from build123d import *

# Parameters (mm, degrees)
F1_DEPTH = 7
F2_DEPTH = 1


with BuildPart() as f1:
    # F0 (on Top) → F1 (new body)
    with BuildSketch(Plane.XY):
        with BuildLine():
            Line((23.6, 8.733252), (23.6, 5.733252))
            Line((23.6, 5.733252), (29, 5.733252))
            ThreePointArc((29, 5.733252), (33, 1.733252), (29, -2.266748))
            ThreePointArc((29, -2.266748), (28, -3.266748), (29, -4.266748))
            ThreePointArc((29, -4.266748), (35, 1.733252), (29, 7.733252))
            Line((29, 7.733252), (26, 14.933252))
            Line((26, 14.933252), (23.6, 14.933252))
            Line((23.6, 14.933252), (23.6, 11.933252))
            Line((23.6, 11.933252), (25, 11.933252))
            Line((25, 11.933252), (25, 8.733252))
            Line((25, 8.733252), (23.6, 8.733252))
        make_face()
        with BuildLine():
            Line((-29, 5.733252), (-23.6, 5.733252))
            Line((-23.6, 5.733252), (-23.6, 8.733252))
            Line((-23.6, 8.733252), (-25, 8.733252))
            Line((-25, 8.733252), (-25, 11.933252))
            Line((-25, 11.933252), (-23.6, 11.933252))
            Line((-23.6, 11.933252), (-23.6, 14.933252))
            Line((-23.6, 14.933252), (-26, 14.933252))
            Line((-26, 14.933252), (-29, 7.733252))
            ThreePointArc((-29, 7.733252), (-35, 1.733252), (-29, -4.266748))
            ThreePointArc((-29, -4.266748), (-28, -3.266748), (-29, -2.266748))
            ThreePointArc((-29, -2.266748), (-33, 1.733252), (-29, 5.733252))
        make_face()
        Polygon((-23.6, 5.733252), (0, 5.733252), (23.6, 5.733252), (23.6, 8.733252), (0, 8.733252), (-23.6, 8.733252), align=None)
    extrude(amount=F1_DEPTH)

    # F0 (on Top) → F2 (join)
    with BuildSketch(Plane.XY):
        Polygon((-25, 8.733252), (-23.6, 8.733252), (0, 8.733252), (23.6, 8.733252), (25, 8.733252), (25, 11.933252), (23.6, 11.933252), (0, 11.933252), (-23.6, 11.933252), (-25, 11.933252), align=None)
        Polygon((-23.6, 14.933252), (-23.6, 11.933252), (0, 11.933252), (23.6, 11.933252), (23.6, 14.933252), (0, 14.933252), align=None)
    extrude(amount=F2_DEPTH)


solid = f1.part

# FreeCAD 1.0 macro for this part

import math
import FreeCAD as App
import Part
import Sketcher


def add_polygon(sketch, points):
    """Adds a closed chain of lines whose ends are joined by coincident constraints."""
    first, n = sketch.GeometryCount, len(points)
    for a, b in zip(points, points[1:] + points[:1]):
        sketch.addGeometry(Part.LineSegment(App.Vector(*a, 0), App.Vector(*b, 0)), False)
    for i in range(n):
        sketch.addConstraint(Sketcher.Constraint("Coincident", first + i, 2, first + (i + 1) % n, 1))

doc = App.newDocument("Part")
body = doc.addObject("PartDesign::Body", "Body")

sketch1 = body.newObject("Sketcher::SketchObject", "Sketch")
sketch1.AttachmentSupport = (doc.getObject("XY_Plane"), [""])
sketch1.MapMode = "FlatFace"
sketch1.addGeometry([
    Part.ArcOfCircle(Part.Circle(App.Vector(29, 1.7, 0), App.Vector(0, 0, 1), 4), math.radians(-90), math.radians(90)),
    Part.ArcOfCircle(Part.Circle(App.Vector(29, -3.3, 0), App.Vector(0, 0, 1), 1), math.radians(90), math.radians(270)),
    Part.ArcOfCircle(Part.Circle(App.Vector(29, 1.7, 0), App.Vector(0, 0, 1), 6), math.radians(-90), math.radians(90)),
    Part.LineSegment(App.Vector(29, 7.7, 0), App.Vector(26, 14.9, 0)),
    Part.LineSegment(App.Vector(26, 14.9, 0), App.Vector(23.6, 14.9, 0)),
    Part.LineSegment(App.Vector(23.6, 14.9, 0), App.Vector(23.6, 11.9, 0)),
    Part.LineSegment(App.Vector(23.6, 11.9, 0), App.Vector(25, 11.9, 0)),
    Part.LineSegment(App.Vector(25, 11.9, 0), App.Vector(25, 8.7, 0)),
    Part.LineSegment(App.Vector(25, 8.7, 0), App.Vector(-25, 8.7, 0)),
    Part.LineSegment(App.Vector(-25, 8.7, 0), App.Vector(-25, 11.9, 0)),
    Part.LineSegment(App.Vector(-25, 11.9, 0), App.Vector(-23.6, 11.9, 0)),
    Part.LineSegment(App.Vector(-23.6, 11.9, 0), App.Vector(-23.6, 14.9, 0)),
    Part.LineSegment(App.Vector(-23.6, 14.9, 0), App.Vector(-26, 14.9, 0)),
    Part.LineSegment(App.Vector(-26, 14.9, 0), App.Vector(-29, 7.7, 0)),
    Part.ArcOfCircle(Part.Circle(App.Vector(-29, 1.7, 0), App.Vector(0, 0, 1), 6), math.radians(90), math.radians(270)),
    Part.ArcOfCircle(Part.Circle(App.Vector(-29, -3.3, 0), App.Vector(0, 0, 1), 1), math.radians(-90), math.radians(90)),
    Part.ArcOfCircle(Part.Circle(App.Vector(-29, 1.7, 0), App.Vector(0, 0, 1), 4), math.radians(90), math.radians(270)),
    Part.LineSegment(App.Vector(-29, 5.7, 0), App.Vector(29, 5.7, 0)),
], False)
sketch1.addConstraint([
    Sketcher.Constraint("Tangent", 0, 1, 1, 1),
    Sketcher.Constraint("Tangent", 1, 2, 2, 1),
    Sketcher.Constraint("Coincident", 2, 2, 3, 1),
    Sketcher.Constraint("Coincident", 3, 2, 4, 1),
    Sketcher.Constraint("Coincident", 4, 2, 5, 1),
    Sketcher.Constraint("Coincident", 5, 2, 6, 1),
    Sketcher.Constraint("Coincident", 6, 2, 7, 1),
    Sketcher.Constraint("Coincident", 7, 2, 8, 1),
    Sketcher.Constraint("Coincident", 8, 2, 9, 1),
    Sketcher.Constraint("Coincident", 9, 2, 10, 1),
    Sketcher.Constraint("Coincident", 10, 2, 11, 1),
    Sketcher.Constraint("Coincident", 11, 2, 12, 1),
    Sketcher.Constraint("Coincident", 12, 2, 13, 1),
    Sketcher.Constraint("Coincident", 13, 2, 14, 1),
    Sketcher.Constraint("Tangent", 14, 2, 15, 1),
    Sketcher.Constraint("Tangent", 15, 2, 16, 2),
    Sketcher.Constraint("Tangent", 16, 1, 17, 1),
    Sketcher.Constraint("Tangent", 17, 2, 0, 2),
    Sketcher.Constraint("Horizontal", 4),
    Sketcher.Constraint("Vertical", 5),
    Sketcher.Constraint("Horizontal", 6),
    Sketcher.Constraint("Vertical", 7),
    Sketcher.Constraint("Horizontal", 8),
    Sketcher.Constraint("Vertical", 9),
    Sketcher.Constraint("Horizontal", 10),
    Sketcher.Constraint("Vertical", 11),
    Sketcher.Constraint("Horizontal", 12),
    Sketcher.Constraint("Horizontal", 17),
    Sketcher.Constraint("Coincident", 2, 3, 0, 3),
    Sketcher.Constraint("Coincident", 16, 3, 14, 3),
    Sketcher.Constraint("Equal", 2, 14),
    Sketcher.Constraint("Equal", 1, 15),
    Sketcher.Constraint("Symmetric", 6, 2, 9, 2, -2),
    Sketcher.Constraint("Symmetric", 4, 2, 11, 2, -2),
    Sketcher.Constraint("Vertical", 0, 3, 1, 3),
    Sketcher.Constraint("Vertical", 14, 3, 15, 3),
    Sketcher.Constraint("Vertical", 1, 2, 2, 2),
    Sketcher.Constraint("Vertical", 16, 3, 13, 2),
    Sketcher.Constraint("Equal", 4, 12),
    Sketcher.Constraint("Equal", 3, 13),
    Sketcher.Constraint("Radius", 0, 4.0),
    Sketcher.Constraint("Radius", 1, 1.0),
    Sketcher.Constraint("DistanceX", 8, 2, 8, 1, 50.0),
    Sketcher.Constraint("DistanceX", 17, 1, 17, 2, 58.0),
    Sketcher.Constraint("DistanceY", 5, 2, 5, 1, 3.0),
    Sketcher.Constraint("DistanceX", 4, 2, 4, 1, 2.4),
    Sketcher.Constraint("DistanceX", 6, 1, 6, 2, 1.4),
    Sketcher.Constraint("DistanceY", 7, 2, 7, 1, 3.2),
    Sketcher.Constraint("DistanceY", 2, 2, 7, 2, 1.0),
    Sketcher.Constraint("DistanceY", 1, 3, -1, 1, 3.266748),
])
pad1 = body.newObject("PartDesign::Pad", "Pad")
pad1.Profile = sketch1
pad1.Length = 7

sketch2 = body.newObject("Sketcher::SketchObject", "Sketch001")
sketch2.AttachmentSupport = (doc.getObject("XY_Plane"), [""])
sketch2.MapMode = "FlatFace"
add_polygon(sketch2, [(-25, 8.7), (25, 8.7), (25, 11.9), (23.6, 11.9), (23.6, 14.9), (-23.6, 14.9), (-23.6, 11.9), (-25, 11.9)])
sketch2.addConstraint([
    Sketcher.Constraint("Horizontal", 0),
    Sketcher.Constraint("Vertical", 1),
    Sketcher.Constraint("Horizontal", 2),
    Sketcher.Constraint("Vertical", 3),
    Sketcher.Constraint("Horizontal", 4),
    Sketcher.Constraint("Vertical", 5),
    Sketcher.Constraint("Horizontal", 6),
    Sketcher.Constraint("Vertical", 7),
    Sketcher.Constraint("Symmetric", 2, 2, 5, 2, -2),
    Sketcher.Constraint("Equal", 2, 6),
    Sketcher.Constraint("DistanceX", 0, 1, 0, 2, 50.0),
    Sketcher.Constraint("DistanceY", 3, 1, 3, 2, 3.0),
    Sketcher.Constraint("DistanceX", 2, 2, 2, 1, 1.4),
    Sketcher.Constraint("DistanceY", 1, 1, 1, 2, 3.2),
    Sketcher.Constraint("DistanceY", -1, 1, 0, 2, 8.733252),
])
pad2 = body.newObject("PartDesign::Pad", "Pad001")
pad2.Profile = sketch2
pad2.Length = 1

doc.recompute()
